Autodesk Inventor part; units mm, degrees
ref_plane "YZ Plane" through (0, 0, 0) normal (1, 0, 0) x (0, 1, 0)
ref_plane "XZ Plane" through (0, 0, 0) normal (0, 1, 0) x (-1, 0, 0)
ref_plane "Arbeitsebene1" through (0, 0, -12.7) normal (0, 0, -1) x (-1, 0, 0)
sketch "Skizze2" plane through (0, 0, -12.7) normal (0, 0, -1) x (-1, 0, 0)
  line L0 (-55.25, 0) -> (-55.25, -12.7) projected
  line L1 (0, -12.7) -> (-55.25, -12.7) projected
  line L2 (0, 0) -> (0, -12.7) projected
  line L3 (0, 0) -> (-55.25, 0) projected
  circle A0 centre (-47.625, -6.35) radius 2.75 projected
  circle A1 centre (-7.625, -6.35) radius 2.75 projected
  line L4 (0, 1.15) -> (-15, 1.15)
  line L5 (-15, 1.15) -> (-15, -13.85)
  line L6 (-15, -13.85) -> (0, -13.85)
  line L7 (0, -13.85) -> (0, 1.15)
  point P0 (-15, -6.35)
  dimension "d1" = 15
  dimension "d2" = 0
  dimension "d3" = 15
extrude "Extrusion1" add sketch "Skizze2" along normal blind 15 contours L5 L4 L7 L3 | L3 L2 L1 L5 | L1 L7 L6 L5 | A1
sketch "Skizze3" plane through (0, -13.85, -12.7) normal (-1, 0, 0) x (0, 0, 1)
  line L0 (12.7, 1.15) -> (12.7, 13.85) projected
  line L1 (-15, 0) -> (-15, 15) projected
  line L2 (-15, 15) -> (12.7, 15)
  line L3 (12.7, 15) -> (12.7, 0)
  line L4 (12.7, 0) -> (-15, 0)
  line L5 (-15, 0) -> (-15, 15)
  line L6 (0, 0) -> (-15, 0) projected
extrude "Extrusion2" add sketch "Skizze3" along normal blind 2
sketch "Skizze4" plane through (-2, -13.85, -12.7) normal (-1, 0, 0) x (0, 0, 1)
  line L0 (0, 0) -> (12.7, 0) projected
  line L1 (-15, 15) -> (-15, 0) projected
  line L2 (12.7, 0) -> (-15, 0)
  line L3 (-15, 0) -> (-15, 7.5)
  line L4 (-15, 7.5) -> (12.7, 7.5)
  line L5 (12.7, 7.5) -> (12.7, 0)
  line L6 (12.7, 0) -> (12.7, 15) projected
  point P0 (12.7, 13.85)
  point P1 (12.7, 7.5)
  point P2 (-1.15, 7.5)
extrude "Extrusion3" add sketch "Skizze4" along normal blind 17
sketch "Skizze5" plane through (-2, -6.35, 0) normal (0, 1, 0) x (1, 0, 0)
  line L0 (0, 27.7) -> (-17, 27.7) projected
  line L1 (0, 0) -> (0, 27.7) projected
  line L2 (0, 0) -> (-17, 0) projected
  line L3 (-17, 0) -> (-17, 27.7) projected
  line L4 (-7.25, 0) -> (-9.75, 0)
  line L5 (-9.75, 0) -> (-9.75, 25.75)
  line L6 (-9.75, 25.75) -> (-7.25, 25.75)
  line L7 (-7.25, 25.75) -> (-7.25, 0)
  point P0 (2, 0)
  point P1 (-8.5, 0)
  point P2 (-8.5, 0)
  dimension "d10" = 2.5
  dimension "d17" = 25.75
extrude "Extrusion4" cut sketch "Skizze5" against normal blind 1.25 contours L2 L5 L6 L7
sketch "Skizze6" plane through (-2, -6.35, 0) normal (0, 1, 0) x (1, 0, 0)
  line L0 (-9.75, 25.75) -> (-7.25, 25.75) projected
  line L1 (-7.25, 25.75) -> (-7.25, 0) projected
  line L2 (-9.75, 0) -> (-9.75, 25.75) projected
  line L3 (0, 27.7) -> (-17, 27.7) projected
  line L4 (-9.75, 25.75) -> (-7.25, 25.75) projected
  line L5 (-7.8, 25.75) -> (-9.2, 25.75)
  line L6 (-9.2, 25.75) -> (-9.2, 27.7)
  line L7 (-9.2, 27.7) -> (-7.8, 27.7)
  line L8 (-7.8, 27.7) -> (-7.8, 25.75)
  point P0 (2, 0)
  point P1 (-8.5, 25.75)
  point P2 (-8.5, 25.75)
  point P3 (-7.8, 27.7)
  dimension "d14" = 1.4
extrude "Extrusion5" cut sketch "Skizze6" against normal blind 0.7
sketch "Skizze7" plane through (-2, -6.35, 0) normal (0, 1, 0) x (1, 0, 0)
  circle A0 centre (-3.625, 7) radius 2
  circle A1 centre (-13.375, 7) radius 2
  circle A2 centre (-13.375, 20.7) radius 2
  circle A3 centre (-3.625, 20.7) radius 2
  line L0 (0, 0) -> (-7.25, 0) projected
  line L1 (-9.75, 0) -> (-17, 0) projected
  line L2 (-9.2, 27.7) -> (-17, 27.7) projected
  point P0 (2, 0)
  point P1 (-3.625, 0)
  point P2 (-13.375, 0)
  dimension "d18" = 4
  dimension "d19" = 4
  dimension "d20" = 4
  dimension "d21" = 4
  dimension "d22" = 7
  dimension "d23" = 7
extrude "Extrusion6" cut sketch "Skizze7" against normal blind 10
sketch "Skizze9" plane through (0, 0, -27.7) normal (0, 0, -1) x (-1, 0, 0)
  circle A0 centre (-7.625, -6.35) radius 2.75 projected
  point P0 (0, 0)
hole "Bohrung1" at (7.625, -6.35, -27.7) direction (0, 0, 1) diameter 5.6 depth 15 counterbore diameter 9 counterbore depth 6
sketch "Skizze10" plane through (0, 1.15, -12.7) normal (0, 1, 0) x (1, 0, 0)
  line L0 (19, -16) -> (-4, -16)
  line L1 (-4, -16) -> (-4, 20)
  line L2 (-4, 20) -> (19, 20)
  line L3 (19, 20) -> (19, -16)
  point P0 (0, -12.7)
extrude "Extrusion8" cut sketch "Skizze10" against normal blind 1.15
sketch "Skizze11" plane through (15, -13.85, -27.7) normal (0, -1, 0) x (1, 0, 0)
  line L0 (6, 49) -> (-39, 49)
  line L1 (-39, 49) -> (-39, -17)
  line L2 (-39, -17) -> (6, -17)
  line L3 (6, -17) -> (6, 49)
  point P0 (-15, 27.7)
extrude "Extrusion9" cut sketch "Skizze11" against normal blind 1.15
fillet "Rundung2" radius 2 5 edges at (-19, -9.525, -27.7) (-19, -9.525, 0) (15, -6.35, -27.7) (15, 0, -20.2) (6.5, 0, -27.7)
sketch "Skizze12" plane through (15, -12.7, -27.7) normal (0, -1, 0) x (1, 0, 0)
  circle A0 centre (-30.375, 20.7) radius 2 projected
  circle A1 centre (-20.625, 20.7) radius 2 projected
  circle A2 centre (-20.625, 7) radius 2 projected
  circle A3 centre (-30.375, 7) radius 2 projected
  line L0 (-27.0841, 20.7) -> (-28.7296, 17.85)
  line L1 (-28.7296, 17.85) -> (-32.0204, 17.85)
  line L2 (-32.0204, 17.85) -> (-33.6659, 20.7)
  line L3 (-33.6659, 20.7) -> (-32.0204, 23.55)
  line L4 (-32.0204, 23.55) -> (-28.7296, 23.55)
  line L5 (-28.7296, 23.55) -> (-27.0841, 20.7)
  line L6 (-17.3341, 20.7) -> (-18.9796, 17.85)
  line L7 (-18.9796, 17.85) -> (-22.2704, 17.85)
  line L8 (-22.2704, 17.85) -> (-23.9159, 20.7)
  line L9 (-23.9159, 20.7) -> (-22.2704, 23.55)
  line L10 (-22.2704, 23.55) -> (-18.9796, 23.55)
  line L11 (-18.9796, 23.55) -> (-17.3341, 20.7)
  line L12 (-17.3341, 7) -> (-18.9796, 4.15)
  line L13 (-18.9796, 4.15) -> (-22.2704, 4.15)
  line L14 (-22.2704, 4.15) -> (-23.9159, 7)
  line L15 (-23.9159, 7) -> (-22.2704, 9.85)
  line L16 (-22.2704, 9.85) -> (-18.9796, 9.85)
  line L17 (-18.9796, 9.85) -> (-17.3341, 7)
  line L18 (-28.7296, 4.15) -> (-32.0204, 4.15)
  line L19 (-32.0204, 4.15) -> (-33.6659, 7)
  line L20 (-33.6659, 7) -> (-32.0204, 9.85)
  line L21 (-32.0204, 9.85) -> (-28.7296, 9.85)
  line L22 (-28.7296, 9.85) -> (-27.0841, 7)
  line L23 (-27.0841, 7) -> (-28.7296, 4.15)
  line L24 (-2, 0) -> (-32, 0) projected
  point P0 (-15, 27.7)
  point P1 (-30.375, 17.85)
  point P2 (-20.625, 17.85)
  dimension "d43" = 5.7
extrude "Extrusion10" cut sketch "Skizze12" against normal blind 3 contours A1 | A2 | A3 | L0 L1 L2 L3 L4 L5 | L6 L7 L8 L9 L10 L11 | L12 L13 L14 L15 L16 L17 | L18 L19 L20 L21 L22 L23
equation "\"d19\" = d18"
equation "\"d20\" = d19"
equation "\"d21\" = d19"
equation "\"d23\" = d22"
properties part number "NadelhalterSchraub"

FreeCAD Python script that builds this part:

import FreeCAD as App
import Part
import Sketcher
from FreeCAD import Vector
Q = App.Units.Quantity


def edges_at(feature, points):
    """Names of the edges that pass closest to the given points."""
    edges = feature.Shape.Edges
    near = lambda p: min(range(len(edges)), key=lambda i: edges[i].distToShape(Part.Vertex(*p))[0])
    return sorted({f"Edge{near(p) + 1}" for p in points})


def add_polygon(sketch, points):
    """Adds a closed chain of lines whose ends are joined by coincident constraints."""
    first, n = sketch.GeometryCount, len(points)
    for a, b in zip(points, points[1:] + points[:1]):
        sketch.addGeometry(Part.LineSegment(App.Vector(*a, 0), App.Vector(*b, 0)), False)
    for i in range(n):
        sketch.addConstraint(Sketcher.Constraint("Coincident", first + i, 2, first + (i + 1) % n, 1))

doc = App.newDocument("Part")
body = doc.addObject("PartDesign::Body", "Body")

# Sketch on XY plane
sketch1 = doc.addObject("Sketcher::SketchObject", "Sketch")
body.addObject(sketch1)
sketch1.AttachmentSupport = (doc.XY_Plane, [""])
sketch1.MapMode = "FlatFace"
sketch1.AttachmentOffset = App.Placement(Vector(0, 0, -12.7), App.Rotation())
add_polygon(sketch1, [(15, 1.15), (15, -13.85), (0, -13.85), (0, 1.15)])  # lines 0-3
sketch1.addConstraint([
    Sketcher.Constraint("Vertical", 0),
    Sketcher.Constraint("Horizontal", 1),
    Sketcher.Constraint("Vertical", 2),
    Sketcher.Constraint("Horizontal", 3),
    Sketcher.Constraint("PointOnObject", 1, 2, -2),
    Sketcher.Constraint("Equal", 3, 0),
    Sketcher.Constraint("DistanceX", 1, 2, 1, 1, 15.0),
    Sketcher.Constraint("DistanceY", 0, 2, -1, 1, 13.85),
])
pad1 = doc.addObject("PartDesign::Pad", "Pad")
body.addObject(pad1)
pad1.Profile = sketch1
pad1.Length = 15
pad1.Reversed = True

# Sketch on YZ plane
sketch2 = doc.addObject("Sketcher::SketchObject", "Sketch001")
body.addObject(sketch2)
sketch2.AttachmentSupport = (doc.YZ_Plane, [""])
sketch2.MapMode = "FlatFace"
add_polygon(sketch2, [(-13.85, 0), (1.15, 0), (1.15, -27.7), (-13.85, -27.7)])  # lines 0-3
sketch2.addConstraint([
    Sketcher.Constraint("Horizontal", 0),
    Sketcher.Constraint("Vertical", 1),
    Sketcher.Constraint("Horizontal", 2),
    Sketcher.Constraint("Vertical", 3),
    Sketcher.Constraint("PointOnObject", 0, 2, -1),
    Sketcher.Constraint("DistanceX", 0, 1, 0, 2, 15.0),
    Sketcher.Constraint("DistanceY", 1, 2, 1, 1, 27.7),
    Sketcher.Constraint("DistanceX", -1, 1, 0, 2, 1.15),
])
pad2 = doc.addObject("PartDesign::Pad", "Pad001")
body.addObject(pad2)
pad2.Profile = sketch2
pad2.Length = 2
pad2.Reversed = True

# Sketch on YZ plane
sketch3 = doc.addObject("Sketcher::SketchObject", "Sketch002")
body.addObject(sketch3)
sketch3.AttachmentSupport = (doc.YZ_Plane, [""])
sketch3.MapMode = "FlatFace"
sketch3.AttachmentOffset = App.Placement(Vector(0, 0, -2), App.Rotation())
add_polygon(sketch3, [(-13.85, -27.7), (-13.85, 0), (-6.35, 0), (-6.35, -27.7)])  # lines 0-3
sketch3.addConstraint([
    Sketcher.Constraint("Vertical", 0),
    Sketcher.Constraint("Horizontal", 1),
    Sketcher.Constraint("Vertical", 2),
    Sketcher.Constraint("Horizontal", 3),
    Sketcher.Constraint("PointOnObject", 0, 2, -1),
    Sketcher.Constraint("DistanceX", 1, 1, 1, 2, 7.5),
    Sketcher.Constraint("DistanceY", 0, 1, 0, 2, 27.7),
    Sketcher.Constraint("DistanceX", 0, 2, -1, 1, 13.85),
])
pad3 = doc.addObject("PartDesign::Pad", "Pad002")
body.addObject(pad3)
pad3.Profile = sketch3
pad3.Length = 17
pad3.Reversed = True

# Sketch on XZ plane
sketch4 = doc.addObject("Sketcher::SketchObject", "Sketch003")
body.addObject(sketch4)
sketch4.AttachmentSupport = (doc.XZ_Plane, [""])
sketch4.MapMode = "FlatFace"
sketch4.AttachmentOffset = App.Placement(Vector(0, 0, 6.35), App.Rotation())
add_polygon(sketch4, [(-11.75, 0), (-9.25, 0), (-9.25, -25.75), (-11.75, -25.75)])  # lines 0-3
sketch4.addConstraint([
    Sketcher.Constraint("Horizontal", 0),
    Sketcher.Constraint("Vertical", 1),
    Sketcher.Constraint("Horizontal", 2),
    Sketcher.Constraint("Vertical", 3),
    Sketcher.Constraint("PointOnObject", 0, 2, -1),
    Sketcher.Constraint("DistanceX", 0, 1, 0, 2, 2.5),
    Sketcher.Constraint("DistanceY", 1, 2, 1, 1, 25.75),
    Sketcher.Constraint("DistanceX", 0, 2, -1, 1, 9.25),
])
pocket1 = doc.addObject("PartDesign::Pocket", "Pocket")
body.addObject(pocket1)
pocket1.Profile = sketch4
pocket1.Length = 1.25
pocket1.Reversed = True

# Sketch on XZ plane
sketch5 = doc.addObject("Sketcher::SketchObject", "Sketch004")
body.addObject(sketch5)
sketch5.AttachmentSupport = (doc.XZ_Plane, [""])
sketch5.MapMode = "FlatFace"
sketch5.AttachmentOffset = App.Placement(Vector(0, 0, 6.35), App.Rotation())
add_polygon(sketch5, [(-11.2, -27.7), (-11.2, -25.75), (-9.8, -25.75), (-9.8, -27.7)])  # lines 0-3
sketch5.addConstraint([
    Sketcher.Constraint("Vertical", 0),
    Sketcher.Constraint("Horizontal", 1),
    Sketcher.Constraint("Vertical", 2),
    Sketcher.Constraint("Horizontal", 3),
    Sketcher.Constraint("DistanceX", 1, 1, 1, 2, 1.4),
    Sketcher.Constraint("DistanceY", 0, 1, 0, 2, 1.95),
    Sketcher.Constraint("DistanceX", 0, 2, -1, 1, 11.2),
    Sketcher.Constraint("DistanceY", 2, 2, -1, 1, 27.7),
])
pocket2 = doc.addObject("PartDesign::Pocket", "Pocket001")
body.addObject(pocket2)
pocket2.Profile = sketch5
pocket2.Length = 0.7
pocket2.Reversed = True

# Sketch on XZ plane
sketch6 = doc.addObject("Sketcher::SketchObject", "Sketch005")
body.addObject(sketch6)
sketch6.AttachmentSupport = (doc.XZ_Plane, [""])
sketch6.MapMode = "FlatFace"
sketch6.AttachmentOffset = App.Placement(Vector(0, 0, 6.35), App.Rotation())
sketch6.addGeometry([
    Part.Circle(Vector(-5.625, -7, 0), Vector(0, 0, 1), 2),
    Part.Circle(Vector(-15.375, -7, 0), Vector(0, 0, 1), 2),
    Part.Circle(Vector(-15.375, -20.7, 0), Vector(0, 0, 1), 2),
    Part.Circle(Vector(-5.625, -20.7, 0), Vector(0, 0, 1), 2),
], False)
sketch6.addConstraint([
    Sketcher.Constraint("Equal", 0, 1),
    Sketcher.Constraint("Equal", 1, 2),
    Sketcher.Constraint("Equal", 2, 3),
    Sketcher.Constraint("Horizontal", 0, 3, 1, 3),
    Sketcher.Constraint("Horizontal", 2, 3, 3, 3),
    Sketcher.Constraint("Vertical", 1, 3, 2, 3),
    Sketcher.Constraint("Vertical", 0, 3, 3, 3),
    Sketcher.Constraint("Diameter", 0, 4.0),
    Sketcher.Constraint("DistanceY", 0, 3, -1, 1, 7.0),
    Sketcher.Constraint("DistanceY", 2, 3, -1, 1, 20.7),
    Sketcher.Constraint("DistanceX", 1, 3, 0, 3, 9.75),
    Sketcher.Constraint("DistanceX", 0, 3, -1, 1, 5.625),
])
pocket3 = doc.addObject("PartDesign::Pocket", "Pocket002")
body.addObject(pocket3)
pocket3.Profile = sketch6
pocket3.Length = 10
pocket3.Reversed = True

# Sketch on XY plane
sketch7 = doc.addObject("Sketcher::SketchObject", "Sketch006")
body.addObject(sketch7)
sketch7.AttachmentSupport = (doc.XY_Plane, [""])
sketch7.MapMode = "FlatFace"
sketch7.AttachmentOffset = App.Placement(Vector(0, 0, -27.7), App.Rotation())
sketch7.addGeometry(Part.Circle(Vector(7.625, -6.35, 0), Vector(0, 0, 1), 2.8), False)
sketch7.addConstraint([
    Sketcher.Constraint("Diameter", 0, 5.6),
    Sketcher.Constraint("DistanceY", 0, 3, -1, 1, 6.35),
    Sketcher.Constraint("DistanceX", -1, 1, 0, 3, 7.625),
])
doc.recompute()
hole = doc.addObject("PartDesign::Hole", "Hole")
body.addObject(hole)
hole.Profile = sketch7
hole.ThreadType = "None"
hole.Diameter = 5.6
hole.DepthType = "Dimension"
hole.Depth = 15
hole.DrillPoint = "Flat"
hole.HoleCutType = "Counterbore"
hole.HoleCutDiameter = 9
hole.HoleCutDepth = 6
hole.Reversed = True

# Sketch on XZ plane
sketch8 = doc.addObject("Sketcher::SketchObject", "Sketch007")
body.addObject(sketch8)
sketch8.AttachmentSupport = (doc.XZ_Plane, [""])
sketch8.MapMode = "FlatFace"
sketch8.AttachmentOffset = App.Placement(Vector(0, 0, -1.15), App.Rotation())
add_polygon(sketch8, [(-4, 3.3), (19, 3.3), (19, -32.7), (-4, -32.7)])  # lines 0-3
sketch8.addConstraint([
    Sketcher.Constraint("Horizontal", 0),
    Sketcher.Constraint("Vertical", 1),
    Sketcher.Constraint("Horizontal", 2),
    Sketcher.Constraint("Vertical", 3),
    Sketcher.Constraint("DistanceX", 0, 1, 0, 2, 23.0),
    Sketcher.Constraint("DistanceY", 1, 2, 1, 1, 36.0),
    Sketcher.Constraint("DistanceX", -1, 1, 0, 2, 19.0),
    Sketcher.Constraint("DistanceY", -1, 1, 0, 2, 3.3),
])
pocket4 = doc.addObject("PartDesign::Pocket", "Pocket003")
body.addObject(pocket4)
pocket4.Profile = sketch8
pocket4.Length = 1.15
pocket4.Reversed = True

# Sketch on XZ plane
sketch9 = doc.addObject("Sketcher::SketchObject", "Sketch008")
body.addObject(sketch9)
sketch9.AttachmentSupport = (doc.XZ_Plane, [""])
sketch9.MapMode = "FlatFace"
sketch9.AttachmentOffset = App.Placement(Vector(0, 0, 13.85), App.Rotation())
add_polygon(sketch9, [(21, -44.7), (21, 21.3), (-24, 21.3), (-24, -44.7)])  # lines 0-3
sketch9.addConstraint([
    Sketcher.Constraint("Vertical", 0),
    Sketcher.Constraint("Horizontal", 1),
    Sketcher.Constraint("Vertical", 2),
    Sketcher.Constraint("Horizontal", 3),
    Sketcher.Constraint("DistanceX", 1, 2, 1, 1, 45.0),
    Sketcher.Constraint("DistanceY", 0, 1, 0, 2, 66.0),
    Sketcher.Constraint("DistanceX", -1, 1, 0, 2, 21.0),
    Sketcher.Constraint("DistanceY", -1, 1, 0, 2, 21.3),
])
pocket5 = doc.addObject("PartDesign::Pocket", "Pocket004")
body.addObject(pocket5)
pocket5.Profile = sketch9
pocket5.Length = 1.15
doc.recompute()

fillet = doc.addObject("PartDesign::Fillet", "Fillet")
body.addObject(fillet)
fillet.Base = (pocket5, edges_at(pocket5, [
    (-19, -9.525, -27.7),
    (-19, -9.525, 0),
    (15, -6.35, -27.7),
    (15, 0, -20.2),
    (6.5, 0, -27.7),
]))
fillet.Radius = 2

# Sketch on XZ plane
sketch10 = doc.addObject("Sketcher::SketchObject", "Sketch009")
body.addObject(sketch10)
sketch10.AttachmentSupport = (doc.XZ_Plane, [""])
sketch10.MapMode = "FlatFace"
sketch10.AttachmentOffset = App.Placement(Vector(0, 0, 12.7), App.Rotation())
add_polygon(sketch10, [(-3.9796, -9.85), (-2.3341, -7), (-3.9796, -4.15), (-7.2704, -4.15), (-8.9159, -7), (-7.2704, -9.85)])  # lines 0-5
add_polygon(sketch10, [(-3.9796, -23.55), (-2.3341, -20.7), (-3.9796, -17.85), (-7.2704, -17.85), (-8.9159, -20.7), (-7.2704, -23.55)])  # lines 6-11
add_polygon(sketch10, [(-17.0204, -23.55), (-13.7296, -23.55), (-12.0841, -20.7), (-13.7296, -17.85), (-17.0204, -17.85), (-18.6659, -20.7)])  # lines 12-17
add_polygon(sketch10, [(-13.7296, -9.85), (-12.0841, -7), (-13.7296, -4.15), (-17.0204, -4.15), (-18.6659, -7), (-17.0204, -9.85)])  # lines 18-23
sketch10.addGeometry(Part.Circle(Vector(-15.375, -7, 0), Vector(0, 0, 1), 2), False)  # 24
sketch10.addConstraint([
    Sketcher.Constraint("Horizontal", 2),
    Sketcher.Constraint("Horizontal", 5),
    Sketcher.Constraint("Horizontal", 8),
    Sketcher.Constraint("Horizontal", 11),
    Sketcher.Constraint("Horizontal", 12),
    Sketcher.Constraint("Horizontal", 15),
    Sketcher.Constraint("Horizontal", 20),
    Sketcher.Constraint("Horizontal", 23),
    Sketcher.Constraint("Parallel", 0, 3),
    Sketcher.Constraint("Parallel", 1, 4),
    Sketcher.Constraint("Parallel", 3, 6),
    Sketcher.Constraint("Parallel", 4, 7),
    Sketcher.Constraint("Parallel", 6, 9),
    Sketcher.Constraint("Parallel", 7, 10),
    Sketcher.Constraint("Parallel", 9, 13),
    Sketcher.Constraint("Parallel", 10, 14),
    Sketcher.Constraint("Parallel", 13, 16),
    Sketcher.Constraint("Parallel", 14, 17),
    Sketcher.Constraint("Parallel", 16, 18),
    Sketcher.Constraint("Parallel", 17, 19),
    Sketcher.Constraint("Parallel", 18, 21),
    Sketcher.Constraint("Parallel", 19, 22),
    Sketcher.Constraint("Horizontal", 24, 3, 0, 2),
    Sketcher.Constraint("Horizontal", 0, 2, 3, 2),
    Sketcher.Constraint("Horizontal", 6, 2, 9, 2),
    Sketcher.Constraint("Horizontal", 11, 2, 12, 2),
    Sketcher.Constraint("Horizontal", 9, 2, 13, 2),
    Sketcher.Constraint("Horizontal", 8, 2, 14, 2),
    Sketcher.Constraint("Horizontal", 13, 2, 16, 2),
    Sketcher.Constraint("Horizontal", 3, 2, 18, 2),
    Sketcher.Constraint("Horizontal", 2, 2, 19, 2),
    Sketcher.Constraint("Horizontal", 18, 2, 21, 2),
    Sketcher.Constraint("Horizontal", 5, 2, 22, 2),
    Sketcher.Constraint("Vertical", 2, 2, 4, 2),
    Sketcher.Constraint("Vertical", 1, 2, 5, 2),
    Sketcher.Constraint("Vertical", 0, 2, 6, 2),
    Sketcher.Constraint("Vertical", 5, 2, 7, 2),
    Sketcher.Constraint("Vertical", 4, 2, 8, 2),
    Sketcher.Constraint("Vertical", 8, 2, 10, 2),
    Sketcher.Constraint("Vertical", 13, 2, 18, 2),
    Sketcher.Constraint("Vertical", 17, 2, 20, 2),
    Sketcher.Constraint("Equal", 11, 12),
    Sketcher.Constraint("Diameter", 24, 4.0),
    Sketcher.Constraint("DistanceY", 4, 2, 2, 2, 5.7),
    Sketcher.Constraint("Angle", 0, Q("59.9992 deg")),
    Sketcher.Constraint("DistanceY", 24, 3, -1, 1, 7.0),
    Sketcher.Constraint("DistanceY", 7, 2, 5, 2, 8.0),
    Sketcher.Constraint("DistanceX", 12, 2, 11, 2, 9.75),
    Sketcher.Constraint("DistanceX", 2, 2, 2, 1, 3.2908),
    Sketcher.Constraint("DistanceX", 24, 3, -1, 1, 15.375),
    Sketcher.Constraint("DistanceX", 0, 2, -1, 1, 2.334),
])
pocket6 = doc.addObject("PartDesign::Pocket", "Pocket005")
body.addObject(pocket6)
pocket6.Profile = sketch10
pocket6.Length = 3

doc.recompute()
